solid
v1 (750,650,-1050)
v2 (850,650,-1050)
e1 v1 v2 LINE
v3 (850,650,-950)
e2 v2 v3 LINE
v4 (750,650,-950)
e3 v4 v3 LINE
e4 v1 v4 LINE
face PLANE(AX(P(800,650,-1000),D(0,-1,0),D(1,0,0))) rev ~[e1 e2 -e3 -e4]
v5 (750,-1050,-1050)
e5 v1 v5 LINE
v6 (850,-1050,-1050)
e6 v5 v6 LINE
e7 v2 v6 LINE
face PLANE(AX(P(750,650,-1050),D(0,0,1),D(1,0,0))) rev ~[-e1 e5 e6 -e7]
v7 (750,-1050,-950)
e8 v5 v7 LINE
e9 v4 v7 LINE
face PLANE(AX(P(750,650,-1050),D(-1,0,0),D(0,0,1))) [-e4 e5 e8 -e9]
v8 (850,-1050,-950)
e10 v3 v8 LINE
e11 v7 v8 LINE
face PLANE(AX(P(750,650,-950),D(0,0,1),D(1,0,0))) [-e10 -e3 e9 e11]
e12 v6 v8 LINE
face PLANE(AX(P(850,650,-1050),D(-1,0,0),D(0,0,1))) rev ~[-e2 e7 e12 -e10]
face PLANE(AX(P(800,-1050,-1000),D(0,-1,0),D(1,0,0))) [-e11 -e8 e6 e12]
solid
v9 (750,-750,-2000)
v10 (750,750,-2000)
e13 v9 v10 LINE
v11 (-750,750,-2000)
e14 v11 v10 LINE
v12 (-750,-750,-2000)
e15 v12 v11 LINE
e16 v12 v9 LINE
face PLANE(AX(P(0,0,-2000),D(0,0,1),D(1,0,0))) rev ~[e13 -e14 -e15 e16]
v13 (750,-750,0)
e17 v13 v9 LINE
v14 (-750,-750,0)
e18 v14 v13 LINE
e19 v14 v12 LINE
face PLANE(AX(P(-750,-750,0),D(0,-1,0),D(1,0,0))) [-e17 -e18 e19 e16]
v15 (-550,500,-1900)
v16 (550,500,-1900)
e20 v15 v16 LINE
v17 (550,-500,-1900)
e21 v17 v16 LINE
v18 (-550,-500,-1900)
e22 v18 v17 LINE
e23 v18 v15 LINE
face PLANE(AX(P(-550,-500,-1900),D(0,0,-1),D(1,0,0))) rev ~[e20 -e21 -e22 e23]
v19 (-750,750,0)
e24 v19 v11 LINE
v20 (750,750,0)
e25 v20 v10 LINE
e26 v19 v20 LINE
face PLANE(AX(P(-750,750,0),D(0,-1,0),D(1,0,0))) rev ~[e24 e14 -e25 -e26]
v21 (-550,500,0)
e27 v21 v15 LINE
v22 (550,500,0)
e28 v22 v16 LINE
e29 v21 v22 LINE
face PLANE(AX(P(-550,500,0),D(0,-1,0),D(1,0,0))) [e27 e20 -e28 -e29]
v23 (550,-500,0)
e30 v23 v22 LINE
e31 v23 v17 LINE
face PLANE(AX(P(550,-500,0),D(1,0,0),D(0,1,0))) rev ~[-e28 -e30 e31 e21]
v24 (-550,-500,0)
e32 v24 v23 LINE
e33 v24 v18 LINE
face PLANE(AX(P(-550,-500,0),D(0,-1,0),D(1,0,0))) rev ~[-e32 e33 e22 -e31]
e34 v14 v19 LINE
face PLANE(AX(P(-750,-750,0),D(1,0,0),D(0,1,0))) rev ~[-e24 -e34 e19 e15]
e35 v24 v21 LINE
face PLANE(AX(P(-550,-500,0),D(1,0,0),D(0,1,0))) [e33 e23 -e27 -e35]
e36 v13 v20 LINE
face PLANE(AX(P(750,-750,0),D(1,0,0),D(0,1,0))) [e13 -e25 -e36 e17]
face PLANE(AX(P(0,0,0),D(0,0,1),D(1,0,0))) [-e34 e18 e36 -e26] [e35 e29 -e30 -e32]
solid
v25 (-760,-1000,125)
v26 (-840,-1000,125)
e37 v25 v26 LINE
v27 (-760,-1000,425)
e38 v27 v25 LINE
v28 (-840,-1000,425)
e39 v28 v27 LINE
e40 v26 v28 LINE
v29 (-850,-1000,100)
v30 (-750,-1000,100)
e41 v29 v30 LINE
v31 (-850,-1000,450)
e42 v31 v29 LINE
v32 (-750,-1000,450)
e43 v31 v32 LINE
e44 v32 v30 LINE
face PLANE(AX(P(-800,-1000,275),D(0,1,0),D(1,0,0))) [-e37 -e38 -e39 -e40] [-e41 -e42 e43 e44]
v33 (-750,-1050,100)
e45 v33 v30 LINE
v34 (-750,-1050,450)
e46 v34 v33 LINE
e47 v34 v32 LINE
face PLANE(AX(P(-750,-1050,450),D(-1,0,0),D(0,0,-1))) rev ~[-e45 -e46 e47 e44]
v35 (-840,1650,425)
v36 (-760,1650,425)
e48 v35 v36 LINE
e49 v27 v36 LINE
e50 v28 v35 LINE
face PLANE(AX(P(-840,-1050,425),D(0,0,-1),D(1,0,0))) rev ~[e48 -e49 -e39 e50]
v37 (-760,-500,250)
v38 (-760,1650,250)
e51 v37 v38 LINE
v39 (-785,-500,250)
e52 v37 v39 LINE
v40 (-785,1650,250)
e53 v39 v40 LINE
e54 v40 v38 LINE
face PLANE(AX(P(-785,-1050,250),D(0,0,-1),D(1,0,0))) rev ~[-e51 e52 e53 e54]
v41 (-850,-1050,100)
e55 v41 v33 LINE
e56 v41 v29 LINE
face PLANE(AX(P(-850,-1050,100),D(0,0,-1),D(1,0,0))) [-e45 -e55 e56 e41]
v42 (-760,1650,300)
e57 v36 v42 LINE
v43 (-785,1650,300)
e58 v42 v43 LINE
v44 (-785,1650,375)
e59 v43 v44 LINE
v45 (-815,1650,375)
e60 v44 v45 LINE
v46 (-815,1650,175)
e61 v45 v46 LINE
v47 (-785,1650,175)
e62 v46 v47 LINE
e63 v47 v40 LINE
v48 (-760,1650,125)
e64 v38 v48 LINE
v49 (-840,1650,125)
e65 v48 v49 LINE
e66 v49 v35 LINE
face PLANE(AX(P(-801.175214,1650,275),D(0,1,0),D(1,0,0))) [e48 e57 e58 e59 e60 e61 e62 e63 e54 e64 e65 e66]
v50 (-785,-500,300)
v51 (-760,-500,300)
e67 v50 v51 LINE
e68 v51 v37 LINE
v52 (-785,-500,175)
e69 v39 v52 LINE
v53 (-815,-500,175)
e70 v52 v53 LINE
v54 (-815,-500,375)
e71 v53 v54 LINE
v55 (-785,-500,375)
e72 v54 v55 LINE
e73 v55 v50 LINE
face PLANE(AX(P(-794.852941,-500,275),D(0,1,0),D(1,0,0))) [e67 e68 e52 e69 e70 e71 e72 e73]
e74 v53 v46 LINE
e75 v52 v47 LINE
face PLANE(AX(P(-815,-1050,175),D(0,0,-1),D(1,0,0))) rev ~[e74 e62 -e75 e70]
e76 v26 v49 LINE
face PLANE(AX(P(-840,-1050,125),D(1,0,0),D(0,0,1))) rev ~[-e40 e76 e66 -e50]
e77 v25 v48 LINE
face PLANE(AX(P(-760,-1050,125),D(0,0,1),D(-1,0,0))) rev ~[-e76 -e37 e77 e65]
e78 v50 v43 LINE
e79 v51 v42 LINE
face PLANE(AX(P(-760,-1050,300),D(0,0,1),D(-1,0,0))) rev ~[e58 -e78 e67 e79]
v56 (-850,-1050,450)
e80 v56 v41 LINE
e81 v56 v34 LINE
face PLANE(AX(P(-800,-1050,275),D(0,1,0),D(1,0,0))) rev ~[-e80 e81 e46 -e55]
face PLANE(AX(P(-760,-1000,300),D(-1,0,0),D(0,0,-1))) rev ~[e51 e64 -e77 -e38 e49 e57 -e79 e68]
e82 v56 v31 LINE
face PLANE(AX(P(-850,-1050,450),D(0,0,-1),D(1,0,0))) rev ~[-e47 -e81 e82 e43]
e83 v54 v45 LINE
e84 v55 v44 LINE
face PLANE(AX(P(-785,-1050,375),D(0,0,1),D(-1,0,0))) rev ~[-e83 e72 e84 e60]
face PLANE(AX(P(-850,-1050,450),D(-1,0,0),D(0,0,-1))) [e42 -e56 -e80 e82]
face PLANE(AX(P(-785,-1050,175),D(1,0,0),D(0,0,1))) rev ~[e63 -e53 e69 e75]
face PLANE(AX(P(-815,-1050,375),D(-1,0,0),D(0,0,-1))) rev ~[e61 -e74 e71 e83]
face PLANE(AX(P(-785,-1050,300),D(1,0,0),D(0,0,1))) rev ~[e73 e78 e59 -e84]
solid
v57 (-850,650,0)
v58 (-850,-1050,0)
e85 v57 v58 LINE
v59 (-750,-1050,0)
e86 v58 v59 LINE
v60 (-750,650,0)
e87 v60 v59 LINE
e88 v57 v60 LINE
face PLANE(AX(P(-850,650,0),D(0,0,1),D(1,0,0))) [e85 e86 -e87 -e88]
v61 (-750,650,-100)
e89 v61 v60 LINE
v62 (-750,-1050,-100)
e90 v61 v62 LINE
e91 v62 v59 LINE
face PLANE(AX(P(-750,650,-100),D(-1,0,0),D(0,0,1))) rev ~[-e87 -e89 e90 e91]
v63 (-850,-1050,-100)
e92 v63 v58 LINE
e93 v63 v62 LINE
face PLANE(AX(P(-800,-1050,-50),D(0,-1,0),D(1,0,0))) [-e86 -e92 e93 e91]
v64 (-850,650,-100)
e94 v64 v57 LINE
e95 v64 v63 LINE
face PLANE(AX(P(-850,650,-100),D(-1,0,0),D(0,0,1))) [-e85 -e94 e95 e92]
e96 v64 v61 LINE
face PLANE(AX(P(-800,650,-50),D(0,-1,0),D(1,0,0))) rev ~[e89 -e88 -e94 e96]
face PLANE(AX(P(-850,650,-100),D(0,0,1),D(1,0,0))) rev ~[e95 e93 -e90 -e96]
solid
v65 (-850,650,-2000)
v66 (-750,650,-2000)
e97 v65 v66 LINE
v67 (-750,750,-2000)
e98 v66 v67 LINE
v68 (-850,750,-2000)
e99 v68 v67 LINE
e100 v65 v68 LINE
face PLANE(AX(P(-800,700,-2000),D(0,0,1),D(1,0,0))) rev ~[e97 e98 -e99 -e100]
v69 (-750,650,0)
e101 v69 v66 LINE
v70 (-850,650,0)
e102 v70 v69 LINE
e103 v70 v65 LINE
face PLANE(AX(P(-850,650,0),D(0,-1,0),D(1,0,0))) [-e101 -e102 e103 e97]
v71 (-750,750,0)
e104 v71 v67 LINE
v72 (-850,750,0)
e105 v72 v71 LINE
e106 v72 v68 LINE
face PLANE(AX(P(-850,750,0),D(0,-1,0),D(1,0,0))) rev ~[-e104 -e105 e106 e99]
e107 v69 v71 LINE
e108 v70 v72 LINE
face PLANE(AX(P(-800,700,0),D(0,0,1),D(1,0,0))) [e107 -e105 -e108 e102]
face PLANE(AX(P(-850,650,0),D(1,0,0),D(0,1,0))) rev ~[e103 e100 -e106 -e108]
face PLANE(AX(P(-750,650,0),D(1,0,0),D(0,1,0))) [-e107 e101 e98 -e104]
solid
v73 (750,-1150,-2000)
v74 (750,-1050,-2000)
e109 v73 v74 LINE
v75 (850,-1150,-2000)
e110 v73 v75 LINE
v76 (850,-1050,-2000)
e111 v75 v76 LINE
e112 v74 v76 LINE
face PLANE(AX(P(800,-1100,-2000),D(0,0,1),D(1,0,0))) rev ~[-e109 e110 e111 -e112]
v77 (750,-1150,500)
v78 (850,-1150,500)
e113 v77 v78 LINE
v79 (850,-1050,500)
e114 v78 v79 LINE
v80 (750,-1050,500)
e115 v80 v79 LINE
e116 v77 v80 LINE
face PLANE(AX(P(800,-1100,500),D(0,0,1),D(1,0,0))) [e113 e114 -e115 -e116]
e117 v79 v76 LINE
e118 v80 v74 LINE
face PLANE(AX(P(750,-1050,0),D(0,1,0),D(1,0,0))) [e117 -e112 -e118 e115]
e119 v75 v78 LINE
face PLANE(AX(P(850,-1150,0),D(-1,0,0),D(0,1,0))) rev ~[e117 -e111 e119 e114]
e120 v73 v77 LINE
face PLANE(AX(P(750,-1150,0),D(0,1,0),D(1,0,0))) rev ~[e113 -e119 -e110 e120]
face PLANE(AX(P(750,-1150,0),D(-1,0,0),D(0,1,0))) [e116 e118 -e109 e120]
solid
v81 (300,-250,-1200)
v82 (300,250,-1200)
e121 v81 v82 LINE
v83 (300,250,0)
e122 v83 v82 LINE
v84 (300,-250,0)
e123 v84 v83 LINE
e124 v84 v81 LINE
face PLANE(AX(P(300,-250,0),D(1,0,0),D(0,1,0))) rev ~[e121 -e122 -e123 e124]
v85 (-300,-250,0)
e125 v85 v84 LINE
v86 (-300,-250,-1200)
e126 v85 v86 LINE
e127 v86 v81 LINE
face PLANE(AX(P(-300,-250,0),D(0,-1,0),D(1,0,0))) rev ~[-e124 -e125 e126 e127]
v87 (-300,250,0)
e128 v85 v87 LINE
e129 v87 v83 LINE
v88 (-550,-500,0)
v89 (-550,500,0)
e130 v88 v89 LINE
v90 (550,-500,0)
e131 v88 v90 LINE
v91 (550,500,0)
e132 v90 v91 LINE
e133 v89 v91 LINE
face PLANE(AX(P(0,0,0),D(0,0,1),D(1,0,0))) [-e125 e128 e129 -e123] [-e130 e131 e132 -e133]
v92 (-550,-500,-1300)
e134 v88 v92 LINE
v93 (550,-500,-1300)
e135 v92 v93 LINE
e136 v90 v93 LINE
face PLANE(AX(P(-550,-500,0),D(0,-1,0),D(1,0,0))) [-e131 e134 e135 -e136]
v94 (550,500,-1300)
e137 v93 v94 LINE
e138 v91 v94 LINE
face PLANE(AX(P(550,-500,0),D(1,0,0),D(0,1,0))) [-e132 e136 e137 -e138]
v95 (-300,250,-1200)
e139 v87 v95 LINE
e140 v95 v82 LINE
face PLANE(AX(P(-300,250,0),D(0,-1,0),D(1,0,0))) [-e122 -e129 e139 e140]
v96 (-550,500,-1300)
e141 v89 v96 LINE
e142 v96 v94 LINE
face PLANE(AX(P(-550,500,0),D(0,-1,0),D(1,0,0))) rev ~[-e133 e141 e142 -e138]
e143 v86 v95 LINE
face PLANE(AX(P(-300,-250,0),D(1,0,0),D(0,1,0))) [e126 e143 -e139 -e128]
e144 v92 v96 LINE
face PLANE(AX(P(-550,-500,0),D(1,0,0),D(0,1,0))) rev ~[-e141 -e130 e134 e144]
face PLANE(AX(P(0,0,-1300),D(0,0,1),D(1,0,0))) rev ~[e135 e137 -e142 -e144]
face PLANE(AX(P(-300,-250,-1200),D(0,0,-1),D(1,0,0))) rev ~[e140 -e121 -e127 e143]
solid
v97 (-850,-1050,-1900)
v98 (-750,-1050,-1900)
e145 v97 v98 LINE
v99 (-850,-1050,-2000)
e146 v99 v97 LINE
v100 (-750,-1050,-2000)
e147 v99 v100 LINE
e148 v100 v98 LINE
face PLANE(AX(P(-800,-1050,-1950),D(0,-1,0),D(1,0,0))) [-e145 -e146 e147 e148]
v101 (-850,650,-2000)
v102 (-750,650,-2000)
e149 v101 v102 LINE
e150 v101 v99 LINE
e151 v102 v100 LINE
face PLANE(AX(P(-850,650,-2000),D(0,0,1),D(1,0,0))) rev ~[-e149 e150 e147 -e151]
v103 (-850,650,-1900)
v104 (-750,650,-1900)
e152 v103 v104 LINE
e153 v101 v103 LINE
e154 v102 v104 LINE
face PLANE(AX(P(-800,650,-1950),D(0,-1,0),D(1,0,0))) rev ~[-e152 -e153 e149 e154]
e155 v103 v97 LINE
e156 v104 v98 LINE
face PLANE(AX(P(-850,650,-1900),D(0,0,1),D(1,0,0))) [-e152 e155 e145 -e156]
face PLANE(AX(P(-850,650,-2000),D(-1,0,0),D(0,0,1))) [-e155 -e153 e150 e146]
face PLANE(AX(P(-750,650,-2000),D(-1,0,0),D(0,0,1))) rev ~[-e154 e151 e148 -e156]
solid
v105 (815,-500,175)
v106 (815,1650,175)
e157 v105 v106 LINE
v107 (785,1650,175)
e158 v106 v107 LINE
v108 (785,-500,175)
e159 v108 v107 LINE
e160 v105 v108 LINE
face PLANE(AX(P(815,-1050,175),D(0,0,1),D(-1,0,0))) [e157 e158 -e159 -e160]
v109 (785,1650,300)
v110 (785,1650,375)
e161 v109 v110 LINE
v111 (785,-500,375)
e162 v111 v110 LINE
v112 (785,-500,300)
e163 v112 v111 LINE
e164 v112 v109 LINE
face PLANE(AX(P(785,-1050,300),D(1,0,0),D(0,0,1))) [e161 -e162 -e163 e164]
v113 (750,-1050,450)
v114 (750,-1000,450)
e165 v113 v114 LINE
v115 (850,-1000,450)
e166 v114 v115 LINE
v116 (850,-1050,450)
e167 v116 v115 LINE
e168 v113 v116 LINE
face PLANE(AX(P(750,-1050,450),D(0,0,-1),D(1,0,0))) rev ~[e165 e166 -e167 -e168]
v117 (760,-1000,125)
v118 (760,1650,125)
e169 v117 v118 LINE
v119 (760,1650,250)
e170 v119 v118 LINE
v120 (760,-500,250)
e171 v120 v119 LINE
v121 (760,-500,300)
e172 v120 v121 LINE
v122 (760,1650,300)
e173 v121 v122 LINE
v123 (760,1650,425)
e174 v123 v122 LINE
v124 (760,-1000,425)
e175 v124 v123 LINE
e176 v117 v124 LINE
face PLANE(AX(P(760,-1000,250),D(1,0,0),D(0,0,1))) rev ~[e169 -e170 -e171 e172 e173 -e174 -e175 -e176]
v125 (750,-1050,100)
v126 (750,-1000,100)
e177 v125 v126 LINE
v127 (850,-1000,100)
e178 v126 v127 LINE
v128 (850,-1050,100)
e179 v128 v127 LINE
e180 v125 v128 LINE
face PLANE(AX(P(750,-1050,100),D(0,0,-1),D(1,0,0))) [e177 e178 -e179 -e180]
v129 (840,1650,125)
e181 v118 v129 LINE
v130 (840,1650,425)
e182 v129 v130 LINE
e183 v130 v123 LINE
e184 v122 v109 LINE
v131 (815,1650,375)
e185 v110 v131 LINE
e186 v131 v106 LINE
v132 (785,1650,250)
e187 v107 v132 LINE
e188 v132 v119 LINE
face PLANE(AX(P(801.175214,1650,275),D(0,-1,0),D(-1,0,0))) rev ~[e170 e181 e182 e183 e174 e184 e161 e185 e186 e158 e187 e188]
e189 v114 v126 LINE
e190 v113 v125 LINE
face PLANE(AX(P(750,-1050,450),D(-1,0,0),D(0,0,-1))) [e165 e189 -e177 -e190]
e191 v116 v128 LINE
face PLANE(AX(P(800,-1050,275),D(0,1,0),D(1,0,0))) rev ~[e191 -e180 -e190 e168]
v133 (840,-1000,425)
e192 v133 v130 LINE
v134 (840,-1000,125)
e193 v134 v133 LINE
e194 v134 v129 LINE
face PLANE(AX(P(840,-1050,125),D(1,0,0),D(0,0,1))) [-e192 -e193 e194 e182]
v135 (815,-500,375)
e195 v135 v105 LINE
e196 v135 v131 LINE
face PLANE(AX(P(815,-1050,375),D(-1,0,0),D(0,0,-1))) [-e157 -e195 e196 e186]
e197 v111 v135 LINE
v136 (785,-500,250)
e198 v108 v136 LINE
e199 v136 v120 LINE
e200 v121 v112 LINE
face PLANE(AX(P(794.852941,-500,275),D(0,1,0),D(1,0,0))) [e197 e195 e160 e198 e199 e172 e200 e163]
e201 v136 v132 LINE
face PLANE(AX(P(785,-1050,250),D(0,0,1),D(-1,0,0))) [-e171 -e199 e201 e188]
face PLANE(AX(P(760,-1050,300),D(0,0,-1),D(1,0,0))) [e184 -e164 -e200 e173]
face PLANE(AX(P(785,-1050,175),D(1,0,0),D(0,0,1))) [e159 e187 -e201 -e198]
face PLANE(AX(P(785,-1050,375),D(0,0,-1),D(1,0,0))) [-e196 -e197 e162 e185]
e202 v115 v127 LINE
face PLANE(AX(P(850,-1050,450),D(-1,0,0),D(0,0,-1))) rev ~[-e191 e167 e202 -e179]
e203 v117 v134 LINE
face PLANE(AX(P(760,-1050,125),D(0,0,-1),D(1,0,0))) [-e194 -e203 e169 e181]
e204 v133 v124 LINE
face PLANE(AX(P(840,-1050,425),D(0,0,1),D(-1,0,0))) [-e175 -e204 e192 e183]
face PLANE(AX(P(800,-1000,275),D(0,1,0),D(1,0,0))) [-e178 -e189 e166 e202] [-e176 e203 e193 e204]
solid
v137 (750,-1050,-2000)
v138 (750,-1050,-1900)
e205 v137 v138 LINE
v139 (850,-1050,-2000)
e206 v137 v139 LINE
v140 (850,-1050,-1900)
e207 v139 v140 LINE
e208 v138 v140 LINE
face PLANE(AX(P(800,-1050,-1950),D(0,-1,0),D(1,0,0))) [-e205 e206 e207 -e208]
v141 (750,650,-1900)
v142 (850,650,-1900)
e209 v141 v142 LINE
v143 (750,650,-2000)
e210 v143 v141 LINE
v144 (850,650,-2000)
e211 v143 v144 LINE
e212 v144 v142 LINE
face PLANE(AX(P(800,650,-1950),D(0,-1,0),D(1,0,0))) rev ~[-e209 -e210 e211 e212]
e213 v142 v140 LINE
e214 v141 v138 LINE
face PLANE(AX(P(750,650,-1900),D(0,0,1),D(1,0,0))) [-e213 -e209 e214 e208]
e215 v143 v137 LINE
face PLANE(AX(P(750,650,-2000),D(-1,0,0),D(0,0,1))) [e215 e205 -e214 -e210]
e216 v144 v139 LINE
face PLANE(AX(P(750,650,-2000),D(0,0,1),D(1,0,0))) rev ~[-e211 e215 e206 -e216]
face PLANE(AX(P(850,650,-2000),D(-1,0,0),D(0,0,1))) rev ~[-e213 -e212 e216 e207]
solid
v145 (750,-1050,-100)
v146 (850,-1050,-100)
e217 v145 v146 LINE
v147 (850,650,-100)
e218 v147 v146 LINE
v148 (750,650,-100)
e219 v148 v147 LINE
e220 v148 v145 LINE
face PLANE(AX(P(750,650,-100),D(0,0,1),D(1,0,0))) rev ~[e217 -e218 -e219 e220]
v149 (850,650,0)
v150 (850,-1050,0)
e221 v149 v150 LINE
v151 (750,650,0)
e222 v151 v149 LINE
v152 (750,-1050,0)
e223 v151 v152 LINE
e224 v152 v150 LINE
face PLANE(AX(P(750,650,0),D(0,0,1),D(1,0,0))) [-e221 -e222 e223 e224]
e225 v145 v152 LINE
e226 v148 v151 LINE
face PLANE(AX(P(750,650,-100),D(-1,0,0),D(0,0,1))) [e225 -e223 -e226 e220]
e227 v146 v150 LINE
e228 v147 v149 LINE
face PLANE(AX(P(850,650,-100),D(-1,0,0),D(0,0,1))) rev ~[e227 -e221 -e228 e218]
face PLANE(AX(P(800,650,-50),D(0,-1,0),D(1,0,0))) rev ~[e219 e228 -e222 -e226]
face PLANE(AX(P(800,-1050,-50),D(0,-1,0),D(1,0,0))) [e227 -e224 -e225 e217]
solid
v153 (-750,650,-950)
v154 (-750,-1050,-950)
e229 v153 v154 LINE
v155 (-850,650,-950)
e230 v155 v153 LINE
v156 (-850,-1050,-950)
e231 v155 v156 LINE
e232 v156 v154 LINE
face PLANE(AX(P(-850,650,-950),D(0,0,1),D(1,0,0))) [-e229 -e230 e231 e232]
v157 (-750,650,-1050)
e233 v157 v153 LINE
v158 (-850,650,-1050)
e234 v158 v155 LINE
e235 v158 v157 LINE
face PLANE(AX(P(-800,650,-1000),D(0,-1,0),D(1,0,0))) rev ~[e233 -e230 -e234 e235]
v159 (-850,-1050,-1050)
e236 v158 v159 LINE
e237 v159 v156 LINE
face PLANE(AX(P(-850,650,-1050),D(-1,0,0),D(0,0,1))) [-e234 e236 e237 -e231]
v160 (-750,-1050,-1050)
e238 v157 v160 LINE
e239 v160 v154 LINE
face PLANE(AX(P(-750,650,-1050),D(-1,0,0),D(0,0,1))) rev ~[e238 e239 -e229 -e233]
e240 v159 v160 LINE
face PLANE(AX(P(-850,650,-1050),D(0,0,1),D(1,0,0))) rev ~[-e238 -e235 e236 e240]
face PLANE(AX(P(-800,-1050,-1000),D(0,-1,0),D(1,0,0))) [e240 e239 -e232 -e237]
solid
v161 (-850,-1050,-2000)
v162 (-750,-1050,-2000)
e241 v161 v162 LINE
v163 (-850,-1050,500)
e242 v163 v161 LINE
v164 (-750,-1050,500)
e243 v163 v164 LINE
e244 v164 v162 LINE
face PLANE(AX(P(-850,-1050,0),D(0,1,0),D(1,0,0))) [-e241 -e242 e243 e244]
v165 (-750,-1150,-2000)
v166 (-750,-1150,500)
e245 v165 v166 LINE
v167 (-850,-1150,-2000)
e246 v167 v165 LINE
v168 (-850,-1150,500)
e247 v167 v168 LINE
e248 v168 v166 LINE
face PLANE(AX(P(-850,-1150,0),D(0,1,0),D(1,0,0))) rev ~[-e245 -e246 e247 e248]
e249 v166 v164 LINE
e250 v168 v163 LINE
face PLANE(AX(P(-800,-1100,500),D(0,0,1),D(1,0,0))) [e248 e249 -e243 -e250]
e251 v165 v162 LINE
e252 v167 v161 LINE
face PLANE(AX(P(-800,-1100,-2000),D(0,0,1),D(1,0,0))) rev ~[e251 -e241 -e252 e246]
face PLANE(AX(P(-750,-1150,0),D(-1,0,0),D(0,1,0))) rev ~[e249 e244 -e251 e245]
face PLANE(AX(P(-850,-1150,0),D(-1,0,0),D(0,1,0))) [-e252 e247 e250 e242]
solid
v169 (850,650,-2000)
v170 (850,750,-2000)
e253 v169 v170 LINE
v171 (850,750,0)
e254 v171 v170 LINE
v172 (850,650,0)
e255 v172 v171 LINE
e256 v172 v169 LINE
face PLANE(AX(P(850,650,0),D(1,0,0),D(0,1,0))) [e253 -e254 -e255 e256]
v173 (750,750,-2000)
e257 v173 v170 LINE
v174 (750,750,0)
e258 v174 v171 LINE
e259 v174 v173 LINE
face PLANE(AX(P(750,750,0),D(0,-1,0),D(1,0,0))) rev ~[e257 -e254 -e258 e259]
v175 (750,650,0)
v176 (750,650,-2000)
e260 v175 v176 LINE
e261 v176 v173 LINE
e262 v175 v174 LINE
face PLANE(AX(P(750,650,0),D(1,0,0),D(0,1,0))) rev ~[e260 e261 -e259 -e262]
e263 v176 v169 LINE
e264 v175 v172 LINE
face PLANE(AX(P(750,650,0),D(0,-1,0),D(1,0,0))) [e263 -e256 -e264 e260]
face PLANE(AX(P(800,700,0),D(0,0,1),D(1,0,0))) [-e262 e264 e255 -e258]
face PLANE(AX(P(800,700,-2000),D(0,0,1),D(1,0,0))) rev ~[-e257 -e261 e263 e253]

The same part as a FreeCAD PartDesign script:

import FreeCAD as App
import Part
import Sketcher


def add_polygon(sketch, points):
    """Adds a closed chain of lines whose ends are joined by coincident constraints."""
    first, n = sketch.GeometryCount, len(points)
    for a, b in zip(points, points[1:] + points[:1]):
        sketch.addGeometry(Part.LineSegment(App.Vector(*a, 0), App.Vector(*b, 0)), False)
    for i in range(n):
        sketch.addConstraint(Sketcher.Constraint("Coincident", first + i, 2, first + (i + 1) % n, 1))

doc = App.newDocument("Part")
params = doc.addObject("Spreadsheet::Sheet", "Params")
for row, (alias, value) in enumerate([
    ("sketch1_width", "1100 mm"),
    ("sketch1_width2", "600 mm"),
    ("sketch1_height", "1000 mm"),
    ("sketch1_height2", "500 mm"),
    ("pad1_length", "1300 mm"),
    ("sketch2_width", "600 mm"),
    ("sketch2_height", "100 mm"),
    ("pad2_length", "500 mm"),
    ("sketch3_width", "1500 mm"),
    ("sketch3_width2", "1100 mm"),
    ("sketch3_height", "1000 mm"),
    ("pad3_length", "2000 mm"),
    ("sketch4_width", "1100 mm"),
    ("sketch4_height", "100 mm"),
    ("pad4_length", "1000 mm"),
    ("sketch5_width", "100 mm"),
    ("pad5_length", "2000 mm"),
    ("sketch6_width", "100 mm"),
    ("pad6_length", "2000 mm"),
    ("sketch7_width", "100 mm"),
    ("pad7_length", "2000 mm"),
    ("sketch8_width", "100 mm"),
    ("pad8_length", "2000 mm"),
    ("sketch9_width", "100 mm"),
    ("pad9_length", "500 mm"),
    ("sketch10_width", "100 mm"),
    ("pad10_length", "1700 mm"),
    ("sketch11_width", "100 mm"),
    ("pad11_length", "1700 mm"),
    ("sketch12_width", "100 mm"),
    ("pad12_length", "1700 mm"),
    ("sketch13_width", "100 mm"),
    ("pad13_length", "1700 mm"),
    ("sketch14_width", "100 mm"),
    ("pad14_length", "1700 mm"),
    ("sketch15_width", "100 mm"),
    ("pad15_length", "1700 mm"),
    ("sketch16_width", "100 mm"),
    ("sketch16_width2", "80 mm"),
    ("sketch16_width3", "25 mm"),
    ("sketch16_width4", "30 mm"),
    ("sketch16_height", "350 mm"),
    ("pad16_length", "50 mm"),
    ("sketch17_width", "100 mm"),
    ("sketch17_width2", "25 mm"),
    ("sketch17_width3", "30 mm"),
    ("sketch17_width4", "80 mm"),
    ("sketch17_height", "350 mm"),
    ("pad17_length", "50 mm"),
    ("sketch18_width", "25 mm"),
    ("sketch18_width2", "30 mm"),
    ("sketch18_width3", "80 mm"),
    ("sketch18_height", "125 mm"),
    ("sketch18_height2", "75 mm"),
    ("pad18_length", "2700 mm"),
    ("sketch19_width", "30 mm"),
    ("sketch19_width2", "25 mm"),
    ("sketch19_height", "200 mm"),
    ("sketch19_height2", "75 mm"),
    ("pad19_length", "500 mm"),
], start=1):
    params.set(f"A{row}", alias)
    params.set(f"B{row}", "=" + value)
    params.setAlias(f"B{row}", alias)

body = doc.addObject("PartDesign::Body", "Body")

# Sketch on XY plane
sketch1 = body.newObject("Sketcher::SketchObject", "Sketch")
sketch1.AttachmentSupport = (doc.getObject("XY_Plane"), [""])
sketch1.MapMode = "FlatFace"
add_polygon(sketch1, [(-550, 500), (-550, -500), (550, -500), (550, 500)])  # lines 0-3
add_polygon(sketch1, [(300, -250), (-300, -250), (-300, 250), (300, 250)])  # lines 4-7
sketch1.addConstraint(Sketcher.Constraint("Vertical", 0))
sketch1.addConstraint(Sketcher.Constraint("Horizontal", 1))
sketch1.addConstraint(Sketcher.Constraint("Vertical", 2))
sketch1.addConstraint(Sketcher.Constraint("Horizontal", 3))
sketch1.addConstraint(Sketcher.Constraint("Horizontal", 4))
sketch1.addConstraint(Sketcher.Constraint("Vertical", 5))
sketch1.addConstraint(Sketcher.Constraint("Horizontal", 6))
sketch1.addConstraint(Sketcher.Constraint("Vertical", 7))
sketch1.addConstraint(Sketcher.Constraint("Symmetric", 0, 2, 2, 2, -1, 1))
sketch1.addConstraint(Sketcher.Constraint("Symmetric", 4, 2, 6, 2, -1, 1))
sketch1.addConstraint(Sketcher.Constraint("DistanceX", 1, 1, 1, 2, 1100.0))
sketch1.addConstraint(Sketcher.Constraint("DistanceX", 4, 2, 4, 1, 600.0))
sketch1.addConstraint(Sketcher.Constraint("DistanceY", 0, 2, 0, 1, 1000.0))
sketch1.addConstraint(Sketcher.Constraint("DistanceY", 5, 1, 5, 2, 500.0))
sketch1.setExpression("Constraints[18]", "Params.sketch1_width")
sketch1.setExpression("Constraints[19]", "Params.sketch1_width2")
sketch1.setExpression("Constraints[20]", "Params.sketch1_height")
sketch1.setExpression("Constraints[21]", "Params.sketch1_height2")
pad1 = body.newObject("PartDesign::Pad", "Pad")
pad1.Profile = sketch1
pad1.setExpression("Length", "Params.pad1_length")
pad1.Reversed = True

# Sketch on XZ plane
sketch2 = body.newObject("Sketcher::SketchObject", "Sketch001")
sketch2.AttachmentSupport = (doc.getObject("XZ_Plane"), [""])
sketch2.MapMode = "FlatFace"
sketch2.AttachmentOffset = App.Placement(App.Vector(0, 0, 250), App.Rotation())
add_polygon(sketch2, [(-300, -1300), (-300, -1200), (300, -1200), (300, -1300)])  # lines 0-3
sketch2.addConstraint(Sketcher.Constraint("Vertical", 0))
sketch2.addConstraint(Sketcher.Constraint("Horizontal", 1))
sketch2.addConstraint(Sketcher.Constraint("Vertical", 2))
sketch2.addConstraint(Sketcher.Constraint("Horizontal", 3))
sketch2.addConstraint(Sketcher.Constraint("DistanceX", 1, 1, 1, 2, 600.0))
sketch2.addConstraint(Sketcher.Constraint("DistanceY", 0, 1, 0, 2, 100.0))
sketch2.addConstraint(Sketcher.Constraint("DistanceX", 0, 2, -1, 1, 300.0))
sketch2.addConstraint(Sketcher.Constraint("DistanceY", 0, 2, -1, 1, 1200.0))
sketch2.setExpression("Constraints[8]", "Params.sketch2_width")
sketch2.setExpression("Constraints[9]", "Params.sketch2_height")
pad2 = body.newObject("PartDesign::Pad", "Pad001")
pad2.Profile = sketch2
pad2.setExpression("Length", "Params.pad2_length")
pad2.Reversed = True
body2 = doc.addObject("PartDesign::Body", "Body001")

# Sketch on XY plane
sketch3 = body2.newObject("Sketcher::SketchObject", "Sketch002")
sketch3.AttachmentSupport = (doc.getObject("XY_Plane001"), [""])
sketch3.MapMode = "FlatFace"
add_polygon(sketch3, [(-750, 750), (-750, -750), (750, -750), (750, 750)])  # lines 0-3
add_polygon(sketch3, [(550, -500), (-550, -500), (-550, 500), (550, 500)])  # lines 4-7
sketch3.addConstraint(Sketcher.Constraint("Vertical", 0))
sketch3.addConstraint(Sketcher.Constraint("Horizontal", 1))
sketch3.addConstraint(Sketcher.Constraint("Vertical", 2))
sketch3.addConstraint(Sketcher.Constraint("Horizontal", 3))
sketch3.addConstraint(Sketcher.Constraint("Horizontal", 4))
sketch3.addConstraint(Sketcher.Constraint("Vertical", 5))
sketch3.addConstraint(Sketcher.Constraint("Horizontal", 6))
sketch3.addConstraint(Sketcher.Constraint("Vertical", 7))
sketch3.addConstraint(Sketcher.Constraint("Symmetric", 0, 2, 2, 2, -1, 1))
sketch3.addConstraint(Sketcher.Constraint("Symmetric", 4, 2, 6, 2, -1, 1))
sketch3.addConstraint(Sketcher.Constraint("Equal", 3, 0))
sketch3.addConstraint(Sketcher.Constraint("DistanceX", 1, 1, 1, 2, 1500.0))
sketch3.addConstraint(Sketcher.Constraint("DistanceX", 4, 2, 4, 1, 1100.0))
sketch3.addConstraint(Sketcher.Constraint("DistanceY", 5, 1, 5, 2, 1000.0))
sketch3.setExpression("Constraints[19]", "Params.sketch3_width")
sketch3.setExpression("Constraints[20]", "Params.sketch3_width2")
sketch3.setExpression("Constraints[21]", "Params.sketch3_height")
pad3 = body2.newObject("PartDesign::Pad", "Pad002")
pad3.Profile = sketch3
pad3.setExpression("Length", "Params.pad3_length")
pad3.Reversed = True

# Sketch on XZ plane
sketch4 = body2.newObject("Sketcher::SketchObject", "Sketch003")
sketch4.AttachmentSupport = (doc.getObject("XZ_Plane001"), [""])
sketch4.MapMode = "FlatFace"
sketch4.AttachmentOffset = App.Placement(App.Vector(0, 0, 500), App.Rotation())
add_polygon(sketch4, [(-550, -2000), (-550, -1900), (550, -1900), (550, -2000)])  # lines 0-3
sketch4.addConstraint(Sketcher.Constraint("Vertical", 0))
sketch4.addConstraint(Sketcher.Constraint("Horizontal", 1))
sketch4.addConstraint(Sketcher.Constraint("Vertical", 2))
sketch4.addConstraint(Sketcher.Constraint("Horizontal", 3))
sketch4.addConstraint(Sketcher.Constraint("DistanceX", 1, 1, 1, 2, 1100.0))
sketch4.addConstraint(Sketcher.Constraint("DistanceY", 0, 1, 0, 2, 100.0))
sketch4.addConstraint(Sketcher.Constraint("DistanceX", 0, 2, -1, 1, 550.0))
sketch4.addConstraint(Sketcher.Constraint("DistanceY", 0, 2, -1, 1, 1900.0))
sketch4.setExpression("Constraints[8]", "Params.sketch4_width")
sketch4.setExpression("Constraints[9]", "Params.sketch4_height")
pad4 = body2.newObject("PartDesign::Pad", "Pad003")
pad4.Profile = sketch4
pad4.setExpression("Length", "Params.pad4_length")
pad4.Reversed = True
body3 = doc.addObject("PartDesign::Body", "Body002")

# Sketch on XY plane
sketch5 = body3.newObject("Sketcher::SketchObject", "Sketch004")
sketch5.AttachmentSupport = (doc.getObject("XY_Plane002"), [""])
sketch5.MapMode = "FlatFace"
add_polygon(sketch5, [(-850, 750), (-850, 650), (-750, 650), (-750, 750)])  # lines 0-3
sketch5.addConstraint(Sketcher.Constraint("Vertical", 0))
sketch5.addConstraint(Sketcher.Constraint("Horizontal", 1))
sketch5.addConstraint(Sketcher.Constraint("Vertical", 2))
sketch5.addConstraint(Sketcher.Constraint("Horizontal", 3))
sketch5.addConstraint(Sketcher.Constraint("Equal", 3, 0))
sketch5.addConstraint(Sketcher.Constraint("DistanceX", 1, 1, 1, 2, 100.0))
sketch5.addConstraint(Sketcher.Constraint("DistanceX", 0, 2, -1, 1, 850.0))
sketch5.addConstraint(Sketcher.Constraint("DistanceY", -1, 1, 0, 2, 650.0))
sketch5.setExpression("Constraints[9]", "Params.sketch5_width")
pad5 = body3.newObject("PartDesign::Pad", "Pad004")
pad5.Profile = sketch5
pad5.setExpression("Length", "Params.pad5_length")
pad5.Reversed = True
body4 = doc.addObject("PartDesign::Body", "Body003")

# Sketch on XY plane
sketch6 = body4.newObject("Sketcher::SketchObject", "Sketch005")
sketch6.AttachmentSupport = (doc.getObject("XY_Plane003"), [""])
sketch6.MapMode = "FlatFace"
add_polygon(sketch6, [(-850, -1050), (-850, -1150), (-750, -1150), (-750, -1050)])  # lines 0-3
sketch6.addConstraint(Sketcher.Constraint("Vertical", 0))
sketch6.addConstraint(Sketcher.Constraint("Horizontal", 1))
sketch6.addConstraint(Sketcher.Constraint("Vertical", 2))
sketch6.addConstraint(Sketcher.Constraint("Horizontal", 3))
sketch6.addConstraint(Sketcher.Constraint("Equal", 3, 0))
sketch6.addConstraint(Sketcher.Constraint("DistanceX", 1, 1, 1, 2, 100.0))
sketch6.addConstraint(Sketcher.Constraint("DistanceX", 0, 2, -1, 1, 850.0))
sketch6.addConstraint(Sketcher.Constraint("DistanceY", 0, 2, -1, 1, 1150.0))
sketch6.setExpression("Constraints[9]", "Params.sketch6_width")
pad6 = body4.newObject("PartDesign::Pad", "Pad005")
pad6.Profile = sketch6
pad6.setExpression("Length", "Params.pad6_length")
pad6.Reversed = True
body5 = doc.addObject("PartDesign::Body", "Body004")

# Sketch on XY plane
sketch7 = body5.newObject("Sketcher::SketchObject", "Sketch006")
sketch7.AttachmentSupport = (doc.getObject("XY_Plane004"), [""])
sketch7.MapMode = "FlatFace"
add_polygon(sketch7, [(750, -1050), (750, -1150), (850, -1150), (850, -1050)])  # lines 0-3
sketch7.addConstraint(Sketcher.Constraint("Vertical", 0))
sketch7.addConstraint(Sketcher.Constraint("Horizontal", 1))
sketch7.addConstraint(Sketcher.Constraint("Vertical", 2))
sketch7.addConstraint(Sketcher.Constraint("Horizontal", 3))
sketch7.addConstraint(Sketcher.Constraint("Equal", 3, 0))
sketch7.addConstraint(Sketcher.Constraint("DistanceX", 1, 1, 1, 2, 100.0))
sketch7.addConstraint(Sketcher.Constraint("DistanceX", -1, 1, 0, 2, 750.0))
sketch7.addConstraint(Sketcher.Constraint("DistanceY", 0, 2, -1, 1, 1150.0))
sketch7.setExpression("Constraints[9]", "Params.sketch7_width")
pad7 = body5.newObject("PartDesign::Pad", "Pad006")
pad7.Profile = sketch7
pad7.setExpression("Length", "Params.pad7_length")
pad7.Reversed = True
body6 = doc.addObject("PartDesign::Body", "Body005")

# Sketch on XY plane
sketch8 = body6.newObject("Sketcher::SketchObject", "Sketch007")
sketch8.AttachmentSupport = (doc.getObject("XY_Plane005"), [""])
sketch8.MapMode = "FlatFace"
add_polygon(sketch8, [(750, 750), (750, 650), (850, 650), (850, 750)])  # lines 0-3
sketch8.addConstraint(Sketcher.Constraint("Vertical", 0))
sketch8.addConstraint(Sketcher.Constraint("Horizontal", 1))
sketch8.addConstraint(Sketcher.Constraint("Vertical", 2))
sketch8.addConstraint(Sketcher.Constraint("Horizontal", 3))
sketch8.addConstraint(Sketcher.Constraint("Equal", 3, 0))
sketch8.addConstraint(Sketcher.Constraint("DistanceX", 1, 1, 1, 2, 100.0))
sketch8.addConstraint(Sketcher.Constraint("DistanceX", -1, 1, 0, 2, 750.0))
sketch8.addConstraint(Sketcher.Constraint("DistanceY", -1, 1, 0, 2, 650.0))
sketch8.setExpression("Constraints[9]", "Params.sketch8_width")
pad8 = body6.newObject("PartDesign::Pad", "Pad007")
pad8.Profile = sketch8
pad8.setExpression("Length", "Params.pad8_length")
pad8.Reversed = True
body4.AllowCompound = True
doc.recompute()

boolean = body4.newObject("PartDesign::Boolean", "Boolean")
boolean.Type = "Fuse"
boolean.addObjects([body5])

# Sketch on XY plane
sketch9 = body4.newObject("Sketcher::SketchObject", "Sketch008")
sketch9.AttachmentSupport = (doc.getObject("XY_Plane003"), [""])
sketch9.MapMode = "FlatFace"
add_polygon(sketch9, [(-850, -1050), (-850, -1150), (-750, -1150), (-750, -1050)])  # lines 0-3
add_polygon(sketch9, [(750, -1050), (750, -1150), (850, -1150), (850, -1050)])  # lines 4-7
sketch9.addConstraint(Sketcher.Constraint("Vertical", 0))
sketch9.addConstraint(Sketcher.Constraint("Horizontal", 1))
sketch9.addConstraint(Sketcher.Constraint("Vertical", 2))
sketch9.addConstraint(Sketcher.Constraint("Horizontal", 3))
sketch9.addConstraint(Sketcher.Constraint("Vertical", 4))
sketch9.addConstraint(Sketcher.Constraint("Horizontal", 5))
sketch9.addConstraint(Sketcher.Constraint("Vertical", 6))
sketch9.addConstraint(Sketcher.Constraint("Horizontal", 7))
sketch9.addConstraint(Sketcher.Constraint("Symmetric", 1, 2, 4, 2, -2))
sketch9.addConstraint(Sketcher.Constraint("Symmetric", 3, 2, 6, 2, -2))
sketch9.addConstraint(Sketcher.Constraint("Equal", 7, 0))
sketch9.addConstraint(Sketcher.Constraint("DistanceX", 1, 1, 1, 2, 100.0))
sketch9.addConstraint(Sketcher.Constraint("DistanceX", 0, 2, -1, 1, 850.0))
sketch9.addConstraint(Sketcher.Constraint("DistanceY", 0, 2, -1, 1, 1150.0))
sketch9.setExpression("Constraints[19]", "Params.sketch9_width")
pad9 = body4.newObject("PartDesign::Pad", "Pad008")
pad9.Profile = sketch9
pad9.setExpression("Length", "Params.pad9_length")
body7 = doc.addObject("PartDesign::Body", "Body006")

# Sketch on XZ plane
sketch10 = body7.newObject("Sketcher::SketchObject", "Sketch009")
sketch10.AttachmentSupport = (doc.getObject("XZ_Plane006"), [""])
sketch10.MapMode = "FlatFace"
sketch10.AttachmentOffset = App.Placement(App.Vector(0, 0, -650), App.Rotation())
add_polygon(sketch10, [(750, 0), (750, -100), (850, -100), (850, 0)])  # lines 0-3
sketch10.addConstraint(Sketcher.Constraint("Vertical", 0))
sketch10.addConstraint(Sketcher.Constraint("Horizontal", 1))
sketch10.addConstraint(Sketcher.Constraint("Vertical", 2))
sketch10.addConstraint(Sketcher.Constraint("Horizontal", 3))
sketch10.addConstraint(Sketcher.Constraint("PointOnObject", 2, 2, -1))
sketch10.addConstraint(Sketcher.Constraint("Equal", 3, 0))
sketch10.addConstraint(Sketcher.Constraint("DistanceX", 1, 1, 1, 2, 100.0))
sketch10.addConstraint(Sketcher.Constraint("DistanceX", -1, 1, 0, 2, 750.0))
sketch10.setExpression("Constraints[10]", "Params.sketch10_width")
pad10 = body7.newObject("PartDesign::Pad", "Pad009")
pad10.Profile = sketch10
pad10.setExpression("Length", "Params.pad10_length")
body8 = doc.addObject("PartDesign::Body", "Body007")

# Sketch on XZ plane
sketch11 = body8.newObject("Sketcher::SketchObject", "Sketch010")
sketch11.AttachmentSupport = (doc.getObject("XZ_Plane007"), [""])
sketch11.MapMode = "FlatFace"
sketch11.AttachmentOffset = App.Placement(App.Vector(0, 0, -650), App.Rotation())
add_polygon(sketch11, [(750, -1900), (750, -2000), (850, -2000), (850, -1900)])  # lines 0-3
sketch11.addConstraint(Sketcher.Constraint("Vertical", 0))
sketch11.addConstraint(Sketcher.Constraint("Horizontal", 1))
sketch11.addConstraint(Sketcher.Constraint("Vertical", 2))
sketch11.addConstraint(Sketcher.Constraint("Horizontal", 3))
sketch11.addConstraint(Sketcher.Constraint("Equal", 3, 0))
sketch11.addConstraint(Sketcher.Constraint("DistanceX", 1, 1, 1, 2, 100.0))
sketch11.addConstraint(Sketcher.Constraint("DistanceX", -1, 1, 0, 2, 750.0))
sketch11.addConstraint(Sketcher.Constraint("DistanceY", 0, 2, -1, 1, 2000.0))
sketch11.setExpression("Constraints[9]", "Params.sketch11_width")
pad11 = body8.newObject("PartDesign::Pad", "Pad010")
pad11.Profile = sketch11
pad11.setExpression("Length", "Params.pad11_length")
body9 = doc.addObject("PartDesign::Body", "Body008")

# Sketch on XZ plane
sketch12 = body9.newObject("Sketcher::SketchObject", "Sketch011")
sketch12.AttachmentSupport = (doc.getObject("XZ_Plane008"), [""])
sketch12.MapMode = "FlatFace"
sketch12.AttachmentOffset = App.Placement(App.Vector(0, 0, -650), App.Rotation())
add_polygon(sketch12, [(750, -950), (750, -1050), (850, -1050), (850, -950)])  # lines 0-3
sketch12.addConstraint(Sketcher.Constraint("Vertical", 0))
sketch12.addConstraint(Sketcher.Constraint("Horizontal", 1))
sketch12.addConstraint(Sketcher.Constraint("Vertical", 2))
sketch12.addConstraint(Sketcher.Constraint("Horizontal", 3))
sketch12.addConstraint(Sketcher.Constraint("Equal", 3, 0))
sketch12.addConstraint(Sketcher.Constraint("DistanceX", 1, 1, 1, 2, 100.0))
sketch12.addConstraint(Sketcher.Constraint("DistanceX", -1, 1, 0, 2, 750.0))
sketch12.addConstraint(Sketcher.Constraint("DistanceY", 0, 2, -1, 1, 1050.0))
sketch12.setExpression("Constraints[9]", "Params.sketch12_width")
pad12 = body9.newObject("PartDesign::Pad", "Pad011")
pad12.Profile = sketch12
pad12.setExpression("Length", "Params.pad12_length")
body10 = doc.addObject("PartDesign::Body", "Body009")

# Sketch on XZ plane
sketch13 = body10.newObject("Sketcher::SketchObject", "Sketch012")
sketch13.AttachmentSupport = (doc.getObject("XZ_Plane009"), [""])
sketch13.MapMode = "FlatFace"
sketch13.AttachmentOffset = App.Placement(App.Vector(0, 0, -650), App.Rotation())
add_polygon(sketch13, [(-850, -950), (-850, -1050), (-750, -1050), (-750, -950)])  # lines 0-3
sketch13.addConstraint(Sketcher.Constraint("Vertical", 0))
sketch13.addConstraint(Sketcher.Constraint("Horizontal", 1))
sketch13.addConstraint(Sketcher.Constraint("Vertical", 2))
sketch13.addConstraint(Sketcher.Constraint("Horizontal", 3))
sketch13.addConstraint(Sketcher.Constraint("Equal", 3, 0))
sketch13.addConstraint(Sketcher.Constraint("DistanceX", 1, 1, 1, 2, 100.0))
sketch13.addConstraint(Sketcher.Constraint("DistanceX", 0, 2, -1, 1, 850.0))
sketch13.addConstraint(Sketcher.Constraint("DistanceY", 0, 2, -1, 1, 1050.0))
sketch13.setExpression("Constraints[9]", "Params.sketch13_width")
pad13 = body10.newObject("PartDesign::Pad", "Pad012")
pad13.Profile = sketch13
pad13.setExpression("Length", "Params.pad13_length")
body11 = doc.addObject("PartDesign::Body", "Body010")

# Sketch on XZ plane
sketch14 = body11.newObject("Sketcher::SketchObject", "Sketch013")
sketch14.AttachmentSupport = (doc.getObject("XZ_Plane010"), [""])
sketch14.MapMode = "FlatFace"
sketch14.AttachmentOffset = App.Placement(App.Vector(0, 0, -650), App.Rotation())
add_polygon(sketch14, [(-850, -1900), (-850, -2000), (-750, -2000), (-750, -1900)])  # lines 0-3
sketch14.addConstraint(Sketcher.Constraint("Vertical", 0))
sketch14.addConstraint(Sketcher.Constraint("Horizontal", 1))
sketch14.addConstraint(Sketcher.Constraint("Vertical", 2))
sketch14.addConstraint(Sketcher.Constraint("Horizontal", 3))
sketch14.addConstraint(Sketcher.Constraint("Equal", 3, 0))
sketch14.addConstraint(Sketcher.Constraint("DistanceX", 1, 1, 1, 2, 100.0))
sketch14.addConstraint(Sketcher.Constraint("DistanceX", 0, 2, -1, 1, 850.0))
sketch14.addConstraint(Sketcher.Constraint("DistanceY", 0, 2, -1, 1, 2000.0))
sketch14.setExpression("Constraints[9]", "Params.sketch14_width")
pad14 = body11.newObject("PartDesign::Pad", "Pad013")
pad14.Profile = sketch14
pad14.setExpression("Length", "Params.pad14_length")
body12 = doc.addObject("PartDesign::Body", "Body011")

# Sketch on XZ plane
sketch15 = body12.newObject("Sketcher::SketchObject", "Sketch014")
sketch15.AttachmentSupport = (doc.getObject("XZ_Plane011"), [""])
sketch15.MapMode = "FlatFace"
sketch15.AttachmentOffset = App.Placement(App.Vector(0, 0, -650), App.Rotation())
add_polygon(sketch15, [(-850, 0), (-850, -100), (-750, -100), (-750, 0)])  # lines 0-3
sketch15.addConstraint(Sketcher.Constraint("Vertical", 0))
sketch15.addConstraint(Sketcher.Constraint("Horizontal", 1))
sketch15.addConstraint(Sketcher.Constraint("Vertical", 2))
sketch15.addConstraint(Sketcher.Constraint("Horizontal", 3))
sketch15.addConstraint(Sketcher.Constraint("PointOnObject", 2, 2, -1))
sketch15.addConstraint(Sketcher.Constraint("Equal", 3, 0))
sketch15.addConstraint(Sketcher.Constraint("DistanceX", 1, 1, 1, 2, 100.0))
sketch15.addConstraint(Sketcher.Constraint("DistanceX", 0, 2, -1, 1, 850.0))
sketch15.setExpression("Constraints[10]", "Params.sketch15_width")
pad15 = body12.newObject("PartDesign::Pad", "Pad014")
pad15.Profile = sketch15
pad15.setExpression("Length", "Params.pad15_length")
body13 = doc.addObject("PartDesign::Body", "Body012")

# Sketch on XZ plane
sketch16 = body13.newObject("Sketcher::SketchObject", "Sketch015")
sketch16.AttachmentSupport = (doc.getObject("XZ_Plane012"), [""])
sketch16.MapMode = "FlatFace"
sketch16.AttachmentOffset = App.Placement(App.Vector(0, 0, 1050), App.Rotation())
add_polygon(sketch16, [(750, 100), (750, 450), (850, 450), (850, 100)])  # lines 0-3
add_polygon(sketch16, [(760, 250), (760, 125), (840, 125), (840, 425), (760, 425), (760, 300), (785, 300), (785, 375), (815, 375), (815, 175), (785, 175), (785, 250)])  # lines 4-15
sketch16.addConstraint(Sketcher.Constraint("Vertical", 0))
sketch16.addConstraint(Sketcher.Constraint("Horizontal", 1))
sketch16.addConstraint(Sketcher.Constraint("Vertical", 2))
sketch16.addConstraint(Sketcher.Constraint("Horizontal", 3))
sketch16.addConstraint(Sketcher.Constraint("Vertical", 4))
sketch16.addConstraint(Sketcher.Constraint("Horizontal", 5))
sketch16.addConstraint(Sketcher.Constraint("Vertical", 6))
sketch16.addConstraint(Sketcher.Constraint("Horizontal", 7))
sketch16.addConstraint(Sketcher.Constraint("Vertical", 8))
sketch16.addConstraint(Sketcher.Constraint("Horizontal", 9))
sketch16.addConstraint(Sketcher.Constraint("Vertical", 10))
sketch16.addConstraint(Sketcher.Constraint("Horizontal", 11))
sketch16.addConstraint(Sketcher.Constraint("Vertical", 12))
sketch16.addConstraint(Sketcher.Constraint("Horizontal", 13))
sketch16.addConstraint(Sketcher.Constraint("Vertical", 14))
sketch16.addConstraint(Sketcher.Constraint("Horizontal", 15))
sketch16.addConstraint(Sketcher.Constraint("Vertical", 4, 2, 7, 2))
sketch16.addConstraint(Sketcher.Constraint("Vertical", 10, 2, 13, 2))
sketch16.addConstraint(Sketcher.Constraint("Equal", 4, 8))
sketch16.addConstraint(Sketcher.Constraint("Equal", 10, 14))
sketch16.addConstraint(Sketcher.Constraint("DistanceX", 1, 1, 1, 2, 100.0))
sketch16.addConstraint(Sketcher.Constraint("DistanceX", 5, 1, 5, 2, 80.0))
sketch16.addConstraint(Sketcher.Constraint("DistanceX", 9, 1, 9, 2, 25.0))
sketch16.addConstraint(Sketcher.Constraint("DistanceX", 11, 1, 11, 2, 30.0))
sketch16.addConstraint(Sketcher.Constraint("DistanceY", 0, 1, 0, 2, 350.0))
sketch16.addConstraint(Sketcher.Constraint("DistanceY", 4, 2, 4, 1, 125.0))
sketch16.addConstraint(Sketcher.Constraint("DistanceY", 6, 1, 6, 2, 300.0))
sketch16.addConstraint(Sketcher.Constraint("DistanceY", 10, 1, 10, 2, 75.0))
sketch16.addConstraint(Sketcher.Constraint("DistanceX", -1, 1, 0, 2, 750.0))
sketch16.addConstraint(Sketcher.Constraint("DistanceY", -1, 1, 0, 2, 450.0))
sketch16.addConstraint(Sketcher.Constraint("DistanceX", -1, 1, 4, 2, 760.0))
sketch16.addConstraint(Sketcher.Constraint("DistanceY", -1, 1, 4, 2, 125.0))
sketch16.setExpression("Constraints[36]", "Params.sketch16_width")
sketch16.setExpression("Constraints[37]", "Params.sketch16_width2")
sketch16.setExpression("Constraints[38]", "Params.sketch16_width3")
sketch16.setExpression("Constraints[39]", "Params.sketch16_width4")
sketch16.setExpression("Constraints[40]", "Params.sketch16_height")
pad16 = body13.newObject("PartDesign::Pad", "Pad015")
pad16.Profile = sketch16
pad16.setExpression("Length", "Params.pad16_length")
pad16.Reversed = True
body14 = doc.addObject("PartDesign::Body", "Body013")
body14.AllowCompound = True

# Sketch on XZ plane
sketch17 = body14.newObject("Sketcher::SketchObject", "Sketch016")
sketch17.AttachmentSupport = (doc.getObject("XZ_Plane013"), [""])
sketch17.MapMode = "FlatFace"
sketch17.AttachmentOffset = App.Placement(App.Vector(0, 0, 1050), App.Rotation())
add_polygon(sketch17, [(-850, 100), (-850, 450), (-750, 450), (-750, 100)])  # lines 0-3
add_polygon(sketch17, [(-760, 125), (-760, 250), (-785, 250), (-785, 175), (-815, 175), (-815, 375), (-785, 375), (-785, 300), (-760, 300), (-760, 425), (-840, 425), (-840, 125)])  # lines 4-15
sketch17.addConstraint(Sketcher.Constraint("Vertical", 0))
sketch17.addConstraint(Sketcher.Constraint("Horizontal", 1))
sketch17.addConstraint(Sketcher.Constraint("Vertical", 2))
sketch17.addConstraint(Sketcher.Constraint("Horizontal", 3))
sketch17.addConstraint(Sketcher.Constraint("Vertical", 4))
sketch17.addConstraint(Sketcher.Constraint("Horizontal", 5))
sketch17.addConstraint(Sketcher.Constraint("Vertical", 6))
sketch17.addConstraint(Sketcher.Constraint("Horizontal", 7))
sketch17.addConstraint(Sketcher.Constraint("Vertical", 8))
sketch17.addConstraint(Sketcher.Constraint("Horizontal", 9))
sketch17.addConstraint(Sketcher.Constraint("Vertical", 10))
sketch17.addConstraint(Sketcher.Constraint("Horizontal", 11))
sketch17.addConstraint(Sketcher.Constraint("Vertical", 12))
sketch17.addConstraint(Sketcher.Constraint("Horizontal", 13))
sketch17.addConstraint(Sketcher.Constraint("Vertical", 14))
sketch17.addConstraint(Sketcher.Constraint("Horizontal", 15))
sketch17.addConstraint(Sketcher.Constraint("Vertical", 6, 2, 9, 2))
sketch17.addConstraint(Sketcher.Constraint("Vertical", 4, 2, 11, 2))
sketch17.addConstraint(Sketcher.Constraint("Equal", 6, 10))
sketch17.addConstraint(Sketcher.Constraint("Equal", 4, 12))
sketch17.addConstraint(Sketcher.Constraint("DistanceX", 1, 1, 1, 2, 100.0))
sketch17.addConstraint(Sketcher.Constraint("DistanceX", 5, 2, 5, 1, 25.0))
sketch17.addConstraint(Sketcher.Constraint("DistanceX", 7, 2, 7, 1, 30.0))
sketch17.addConstraint(Sketcher.Constraint("DistanceX", 13, 2, 13, 1, 80.0))
sketch17.addConstraint(Sketcher.Constraint("DistanceY", 0, 1, 0, 2, 350.0))
sketch17.addConstraint(Sketcher.Constraint("DistanceY", 4, 1, 4, 2, 125.0))
sketch17.addConstraint(Sketcher.Constraint("DistanceY", 6, 2, 6, 1, 75.0))
sketch17.addConstraint(Sketcher.Constraint("DistanceY", 8, 1, 8, 2, 200.0))
sketch17.addConstraint(Sketcher.Constraint("DistanceX", 0, 2, -1, 1, 850.0))
sketch17.addConstraint(Sketcher.Constraint("DistanceY", -1, 1, 0, 2, 450.0))
sketch17.addConstraint(Sketcher.Constraint("DistanceX", 4, 2, -1, 1, 760.0))
sketch17.addConstraint(Sketcher.Constraint("DistanceY", -1, 1, 4, 2, 250.0))
sketch17.setExpression("Constraints[36]", "Params.sketch17_width")
sketch17.setExpression("Constraints[37]", "Params.sketch17_width2")
sketch17.setExpression("Constraints[38]", "Params.sketch17_width3")
sketch17.setExpression("Constraints[39]", "Params.sketch17_width4")
sketch17.setExpression("Constraints[40]", "Params.sketch17_height")
pad17 = body14.newObject("PartDesign::Pad", "Pad016")
pad17.Profile = sketch17
pad17.setExpression("Length", "Params.pad17_length")
pad17.Reversed = True
doc.recompute()

boolean2 = body14.newObject("PartDesign::Boolean", "Boolean001")
boolean2.Type = "Fuse"
boolean2.addObjects([body13])

# Sketch on XZ plane
sketch18 = body14.newObject("Sketcher::SketchObject", "Sketch017")
sketch18.AttachmentSupport = (doc.getObject("XZ_Plane013"), [""])
sketch18.MapMode = "FlatFace"
sketch18.AttachmentOffset = App.Placement(App.Vector(0, 0, 1050), App.Rotation())
add_polygon(sketch18, [(760, 125), (760, 250), (785, 250), (785, 175), (815, 175), (815, 375), (785, 375), (785, 300), (760, 300), (760, 425), (840, 425), (840, 125)])  # lines 0-11
add_polygon(sketch18, [(-760, 250), (-760, 125), (-840, 125), (-840, 425), (-760, 425), (-760, 300), (-785, 300), (-785, 375), (-815, 375), (-815, 175), (-785, 175), (-785, 250)])  # lines 12-23
sketch18.addConstraint(Sketcher.Constraint("Vertical", 0))
sketch18.addConstraint(Sketcher.Constraint("Horizontal", 1))
sketch18.addConstraint(Sketcher.Constraint("Vertical", 2))
sketch18.addConstraint(Sketcher.Constraint("Horizontal", 3))
sketch18.addConstraint(Sketcher.Constraint("Vertical", 4))
sketch18.addConstraint(Sketcher.Constraint("Horizontal", 5))
sketch18.addConstraint(Sketcher.Constraint("Vertical", 6))
sketch18.addConstraint(Sketcher.Constraint("Horizontal", 7))
sketch18.addConstraint(Sketcher.Constraint("Vertical", 8))
sketch18.addConstraint(Sketcher.Constraint("Horizontal", 9))
sketch18.addConstraint(Sketcher.Constraint("Vertical", 10))
sketch18.addConstraint(Sketcher.Constraint("Horizontal", 11))
sketch18.addConstraint(Sketcher.Constraint("Vertical", 12))
sketch18.addConstraint(Sketcher.Constraint("Horizontal", 13))
sketch18.addConstraint(Sketcher.Constraint("Vertical", 14))
sketch18.addConstraint(Sketcher.Constraint("Horizontal", 15))
sketch18.addConstraint(Sketcher.Constraint("Vertical", 16))
sketch18.addConstraint(Sketcher.Constraint("Horizontal", 17))
sketch18.addConstraint(Sketcher.Constraint("Vertical", 18))
sketch18.addConstraint(Sketcher.Constraint("Horizontal", 19))
sketch18.addConstraint(Sketcher.Constraint("Vertical", 20))
sketch18.addConstraint(Sketcher.Constraint("Horizontal", 21))
sketch18.addConstraint(Sketcher.Constraint("Vertical", 22))
sketch18.addConstraint(Sketcher.Constraint("Horizontal", 23))
sketch18.addConstraint(Sketcher.Constraint("Symmetric", 11, 2, 12, 2, -2))
sketch18.addConstraint(Sketcher.Constraint("Symmetric", 9, 2, 14, 2, -2))
sketch18.addConstraint(Sketcher.Constraint("Symmetric", 7, 2, 16, 2, -2))
sketch18.addConstraint(Sketcher.Constraint("Symmetric", 5, 2, 18, 2, -2))
sketch18.addConstraint(Sketcher.Constraint("Symmetric", 3, 2, 20, 2, -2))
sketch18.addConstraint(Sketcher.Constraint("Symmetric", 1, 2, 22, 2, -2))
sketch18.addConstraint(Sketcher.Constraint("Vertical", 2, 2, 5, 2))
sketch18.addConstraint(Sketcher.Constraint("Vertical", 0, 2, 7, 2))
sketch18.addConstraint(Sketcher.Constraint("Equal", 2, 6))
sketch18.addConstraint(Sketcher.Constraint("Equal", 0, 8))
sketch18.addConstraint(Sketcher.Constraint("DistanceX", 1, 1, 1, 2, 25.0))
sketch18.addConstraint(Sketcher.Constraint("DistanceX", 3, 1, 3, 2, 30.0))
sketch18.addConstraint(Sketcher.Constraint("DistanceX", 9, 1, 9, 2, 80.0))
sketch18.addConstraint(Sketcher.Constraint("DistanceY", 0, 1, 0, 2, 125.0))
sketch18.addConstraint(Sketcher.Constraint("DistanceY", 2, 2, 2, 1, 75.0))
sketch18.addConstraint(Sketcher.Constraint("DistanceY", 4, 1, 4, 2, 200.0))
sketch18.addConstraint(Sketcher.Constraint("DistanceX", -1, 1, 0, 2, 760.0))
sketch18.addConstraint(Sketcher.Constraint("DistanceY", -1, 1, 0, 2, 250.0))
sketch18.setExpression("Constraints[58]", "Params.sketch18_width")
sketch18.setExpression("Constraints[59]", "Params.sketch18_width2")
sketch18.setExpression("Constraints[60]", "Params.sketch18_width3")
sketch18.setExpression("Constraints[61]", "Params.sketch18_height")
sketch18.setExpression("Constraints[62]", "Params.sketch18_height2")
pad18 = body14.newObject("PartDesign::Pad", "Pad017")
pad18.Profile = sketch18
pad18.setExpression("Length", "Params.pad18_length")
pad18.Reversed = True

# Sketch on XZ plane
sketch19 = body14.newObject("Sketcher::SketchObject", "Sketch018")
sketch19.AttachmentSupport = (doc.getObject("XZ_Plane013"), [""])
sketch19.MapMode = "FlatFace"
sketch19.AttachmentOffset = App.Placement(App.Vector(0, 0, 1000), App.Rotation())
add_polygon(sketch19, [(815, 375), (815, 175), (785, 175), (785, 250), (760, 250), (760, 300), (785, 300), (785, 375)])  # lines 0-7
add_polygon(sketch19, [(-760, 250), (-785, 250), (-785, 175), (-815, 175), (-815, 375), (-785, 375), (-785, 300), (-760, 300)])  # lines 8-15
sketch19.addConstraint(Sketcher.Constraint("Vertical", 0))
sketch19.addConstraint(Sketcher.Constraint("Horizontal", 1))
sketch19.addConstraint(Sketcher.Constraint("Vertical", 2))
sketch19.addConstraint(Sketcher.Constraint("Horizontal", 3))
sketch19.addConstraint(Sketcher.Constraint("Vertical", 4))
sketch19.addConstraint(Sketcher.Constraint("Horizontal", 5))
sketch19.addConstraint(Sketcher.Constraint("Vertical", 6))
sketch19.addConstraint(Sketcher.Constraint("Horizontal", 7))
sketch19.addConstraint(Sketcher.Constraint("Horizontal", 8))
sketch19.addConstraint(Sketcher.Constraint("Vertical", 9))
sketch19.addConstraint(Sketcher.Constraint("Horizontal", 10))
sketch19.addConstraint(Sketcher.Constraint("Vertical", 11))
sketch19.addConstraint(Sketcher.Constraint("Horizontal", 12))
sketch19.addConstraint(Sketcher.Constraint("Vertical", 13))
sketch19.addConstraint(Sketcher.Constraint("Horizontal", 14))
sketch19.addConstraint(Sketcher.Constraint("Vertical", 15))
sketch19.addConstraint(Sketcher.Constraint("Symmetric", 2, 2, 8, 2, -2))
sketch19.addConstraint(Sketcher.Constraint("Symmetric", 0, 2, 10, 2, -2))
sketch19.addConstraint(Sketcher.Constraint("Symmetric", 6, 2, 12, 2, -2))
sketch19.addConstraint(Sketcher.Constraint("Symmetric", 4, 2, 14, 2, -2))
sketch19.addConstraint(Sketcher.Constraint("Vertical", 2, 2, 5, 2))
sketch19.addConstraint(Sketcher.Constraint("Equal", 2, 6))
sketch19.addConstraint(Sketcher.Constraint("DistanceX", 1, 2, 1, 1, 30.0))
sketch19.addConstraint(Sketcher.Constraint("DistanceX", 3, 2, 3, 1, 25.0))
sketch19.addConstraint(Sketcher.Constraint("DistanceY", 0, 2, 0, 1, 200.0))
sketch19.addConstraint(Sketcher.Constraint("DistanceY", 2, 1, 2, 2, 75.0))
sketch19.addConstraint(Sketcher.Constraint("DistanceX", -1, 1, 0, 2, 815.0))
sketch19.addConstraint(Sketcher.Constraint("DistanceY", -1, 1, 0, 2, 175.0))
sketch19.setExpression("Constraints[38]", "Params.sketch19_width")
sketch19.setExpression("Constraints[39]", "Params.sketch19_width2")
sketch19.setExpression("Constraints[40]", "Params.sketch19_height")
sketch19.setExpression("Constraints[41]", "Params.sketch19_height2")
pad19 = body14.newObject("PartDesign::Pad", "Pad018")
pad19.Profile = sketch19
pad19.setExpression("Length", "Params.pad19_length")
pad19.Reversed = True

doc.recompute()
